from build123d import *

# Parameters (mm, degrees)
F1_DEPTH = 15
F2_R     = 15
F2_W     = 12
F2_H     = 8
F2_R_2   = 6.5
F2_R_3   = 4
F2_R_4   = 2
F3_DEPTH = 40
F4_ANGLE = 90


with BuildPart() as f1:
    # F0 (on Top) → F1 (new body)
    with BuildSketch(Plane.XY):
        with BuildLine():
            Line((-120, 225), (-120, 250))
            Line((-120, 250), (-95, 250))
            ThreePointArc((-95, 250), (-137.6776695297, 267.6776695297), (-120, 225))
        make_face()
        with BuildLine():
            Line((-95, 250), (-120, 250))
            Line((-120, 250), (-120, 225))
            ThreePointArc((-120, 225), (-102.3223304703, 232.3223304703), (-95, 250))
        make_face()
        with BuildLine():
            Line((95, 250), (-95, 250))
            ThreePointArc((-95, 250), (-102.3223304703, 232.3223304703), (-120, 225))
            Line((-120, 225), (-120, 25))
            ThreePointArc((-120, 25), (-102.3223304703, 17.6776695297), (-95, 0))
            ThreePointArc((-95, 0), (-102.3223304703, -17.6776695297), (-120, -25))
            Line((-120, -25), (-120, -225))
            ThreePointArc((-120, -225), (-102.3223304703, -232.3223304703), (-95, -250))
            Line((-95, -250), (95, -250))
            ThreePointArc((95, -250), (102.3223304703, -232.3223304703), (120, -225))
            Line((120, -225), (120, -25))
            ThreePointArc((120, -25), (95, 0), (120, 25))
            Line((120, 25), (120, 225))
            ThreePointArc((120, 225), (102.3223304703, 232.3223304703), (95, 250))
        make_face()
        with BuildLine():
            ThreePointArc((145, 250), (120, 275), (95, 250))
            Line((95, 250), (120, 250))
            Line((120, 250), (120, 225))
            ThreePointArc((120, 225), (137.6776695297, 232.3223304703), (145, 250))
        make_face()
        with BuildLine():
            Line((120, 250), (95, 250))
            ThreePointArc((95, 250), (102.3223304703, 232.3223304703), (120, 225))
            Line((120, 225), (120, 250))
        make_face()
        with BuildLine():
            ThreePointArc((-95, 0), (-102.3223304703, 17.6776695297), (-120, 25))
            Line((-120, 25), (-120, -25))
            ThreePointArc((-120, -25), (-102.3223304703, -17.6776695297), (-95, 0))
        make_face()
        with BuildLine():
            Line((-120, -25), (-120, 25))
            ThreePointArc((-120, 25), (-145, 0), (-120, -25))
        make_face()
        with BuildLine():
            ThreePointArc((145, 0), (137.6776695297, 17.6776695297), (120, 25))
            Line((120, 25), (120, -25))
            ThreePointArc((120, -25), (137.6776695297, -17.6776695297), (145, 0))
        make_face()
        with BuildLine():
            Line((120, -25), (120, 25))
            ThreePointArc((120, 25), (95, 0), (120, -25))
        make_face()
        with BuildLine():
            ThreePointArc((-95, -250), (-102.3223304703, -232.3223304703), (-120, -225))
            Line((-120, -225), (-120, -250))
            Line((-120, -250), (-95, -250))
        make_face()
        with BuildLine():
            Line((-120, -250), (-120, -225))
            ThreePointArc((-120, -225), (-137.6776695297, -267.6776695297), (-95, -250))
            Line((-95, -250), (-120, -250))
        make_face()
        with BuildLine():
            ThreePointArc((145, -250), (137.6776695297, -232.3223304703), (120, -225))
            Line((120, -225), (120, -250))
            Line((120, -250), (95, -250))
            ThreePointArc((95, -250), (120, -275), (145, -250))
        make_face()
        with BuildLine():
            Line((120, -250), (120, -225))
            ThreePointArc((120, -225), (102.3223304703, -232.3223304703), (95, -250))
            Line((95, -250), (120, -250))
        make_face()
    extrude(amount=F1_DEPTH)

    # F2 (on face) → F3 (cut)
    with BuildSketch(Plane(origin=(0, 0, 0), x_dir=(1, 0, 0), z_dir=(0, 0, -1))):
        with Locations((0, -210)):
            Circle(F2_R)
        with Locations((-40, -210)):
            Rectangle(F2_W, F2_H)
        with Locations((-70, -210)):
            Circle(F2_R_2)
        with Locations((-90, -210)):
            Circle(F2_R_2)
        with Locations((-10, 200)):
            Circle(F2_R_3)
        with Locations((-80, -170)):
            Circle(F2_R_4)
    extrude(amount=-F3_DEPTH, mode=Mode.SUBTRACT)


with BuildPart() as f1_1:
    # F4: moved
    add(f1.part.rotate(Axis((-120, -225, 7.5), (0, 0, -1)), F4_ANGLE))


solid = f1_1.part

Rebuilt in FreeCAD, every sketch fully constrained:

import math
import FreeCAD as App
import Part
import Sketcher
Q = App.Units.Quantity


def add_polygon(sketch, points):
    """Adds a closed chain of lines whose ends are joined by coincident constraints."""
    first, n = sketch.GeometryCount, len(points)
    for a, b in zip(points, points[1:] + points[:1]):
        sketch.addGeometry(Part.LineSegment(App.Vector(*a, 0), App.Vector(*b, 0)), False)
    for i in range(n):
        sketch.addConstraint(Sketcher.Constraint("Coincident", first + i, 2, first + (i + 1) % n, 1))

doc = App.newDocument("Part")
params = doc.addObject("Spreadsheet::Sheet", "Params")
for row, (alias, value) in enumerate([
    ("sketch1_radius", "25 mm"),
    ("sketch1_width", "190 mm"),
    ("sketch1_height", "200 mm"),
    ("pad1_length", "15 mm"),
    ("sketch2_diameter", "30 mm"),
    ("sketch2_diameter2", "13 mm"),
    ("sketch2_diameter3", "8 mm"),
    ("sketch2_diameter4", "4 mm"),
    ("sketch2_width", "12 mm"),
    ("pocket1_length", "40 mm"),
], start=1):
    params.set(f"A{row}", alias)
    params.set(f"B{row}", "=" + value)
    params.setAlias(f"B{row}", alias)

body = doc.addObject("PartDesign::Body", "Body")

sketch1 = body.newObject("Sketcher::SketchObject", "Sketch")
sketch1.AttachmentSupport = (doc.getObject("XY_Plane"), [""])
sketch1.MapMode = "FlatFace"
sketch1.addGeometry(Part.ArcOfCircle(Part.Circle(App.Vector(-120, 250, 0), App.Vector(0, 0, 1), 25), math.radians(0), math.radians(270)), False)
sketch1.addGeometry(Part.LineSegment(App.Vector(-120, 225, 0), App.Vector(-120, 25, 0)), False)
sketch1.addGeometry(Part.ArcOfCircle(Part.Circle(App.Vector(-120, 0, 0), App.Vector(0, 0, 1), 25), math.radians(90), math.radians(270)), False)
sketch1.addGeometry(Part.LineSegment(App.Vector(-120, -25, 0), App.Vector(-120, -225, 0)), False)
sketch1.addGeometry(Part.ArcOfCircle(Part.Circle(App.Vector(-120, -250, 0), App.Vector(0, 0, 1), 25), math.radians(90), math.radians(360)), False)
sketch1.addGeometry(Part.LineSegment(App.Vector(-95, -250, 0), App.Vector(95, -250, 0)), False)
sketch1.addGeometry(Part.ArcOfCircle(Part.Circle(App.Vector(120, -250, 0), App.Vector(0, 0, 1), 25), math.radians(180), math.radians(360)), False)
sketch1.addGeometry(Part.ArcOfCircle(Part.Circle(App.Vector(120, -250, 0), App.Vector(0, 0, 1), 25), math.radians(0), math.radians(90)), False)
sketch1.addGeometry(Part.LineSegment(App.Vector(120, -225, 0), App.Vector(120, -25, 0)), False)
sketch1.addGeometry(Part.ArcOfCircle(Part.Circle(App.Vector(120, 0, 0), App.Vector(0, 0, 1), 25), math.radians(-90), math.radians(0)), False)
sketch1.addGeometry(Part.ArcOfCircle(Part.Circle(App.Vector(120, 0, 0), App.Vector(0, 0, 1), 25), math.radians(0), math.radians(90)), False)
sketch1.addGeometry(Part.LineSegment(App.Vector(120, 25, 0), App.Vector(120, 225, 0)), False)
sketch1.addGeometry(Part.ArcOfCircle(Part.Circle(App.Vector(120, 250, 0), App.Vector(0, 0, 1), 25), math.radians(-90), math.radians(0)), False)
sketch1.addGeometry(Part.ArcOfCircle(Part.Circle(App.Vector(120, 250, 0), App.Vector(0, 0, 1), 25), math.radians(0), math.radians(180)), False)
sketch1.addGeometry(Part.LineSegment(App.Vector(95, 250, 0), App.Vector(-95, 250, 0)), False)
sketch1.addConstraint(Sketcher.Constraint("Coincident", 0, 2, 1, 1))
sketch1.addConstraint(Sketcher.Constraint("Coincident", 1, 2, 2, 1))
sketch1.addConstraint(Sketcher.Constraint("Coincident", 2, 2, 3, 1))
sketch1.addConstraint(Sketcher.Constraint("Coincident", 3, 2, 4, 1))
sketch1.addConstraint(Sketcher.Constraint("Coincident", 4, 2, 5, 1))
sketch1.addConstraint(Sketcher.Constraint("Coincident", 5, 2, 6, 1))
sketch1.addConstraint(Sketcher.Constraint("Tangent", 6, 2, 7, 1))
sketch1.addConstraint(Sketcher.Constraint("Coincident", 7, 2, 8, 1))
sketch1.addConstraint(Sketcher.Constraint("Coincident", 8, 2, 9, 1))
sketch1.addConstraint(Sketcher.Constraint("Tangent", 9, 2, 10, 1))
sketch1.addConstraint(Sketcher.Constraint("Coincident", 10, 2, 11, 1))
sketch1.addConstraint(Sketcher.Constraint("Coincident", 11, 2, 12, 1))
sketch1.addConstraint(Sketcher.Constraint("Tangent", 12, 2, 13, 1))
sketch1.addConstraint(Sketcher.Constraint("Coincident", 13, 2, 14, 1))
sketch1.addConstraint(Sketcher.Constraint("Coincident", 14, 2, 0, 1))
sketch1.addConstraint(Sketcher.Constraint("Vertical", 1))
sketch1.addConstraint(Sketcher.Constraint("Vertical", 3))
sketch1.addConstraint(Sketcher.Constraint("Horizontal", 5))
sketch1.addConstraint(Sketcher.Constraint("Vertical", 8))
sketch1.addConstraint(Sketcher.Constraint("Vertical", 11))
sketch1.addConstraint(Sketcher.Constraint("Horizontal", 14))
sketch1.addConstraint(Sketcher.Constraint("Equal", 0, 2))
sketch1.addConstraint(Sketcher.Constraint("Equal", 2, 4))
sketch1.addConstraint(Sketcher.Constraint("Equal", 4, 6))
sketch1.addConstraint(Sketcher.Constraint("Equal", 6, 7))
sketch1.addConstraint(Sketcher.Constraint("Equal", 7, 9))
sketch1.addConstraint(Sketcher.Constraint("Equal", 9, 10))
sketch1.addConstraint(Sketcher.Constraint("Equal", 10, 12))
sketch1.addConstraint(Sketcher.Constraint("Equal", 12, 13))
sketch1.addConstraint(Sketcher.Constraint("Symmetric", 0, 3, 6, 3, -1, 1))
sketch1.addConstraint(Sketcher.Constraint("Symmetric", 2, 3, 9, 3, -1, 1))
sketch1.addConstraint(Sketcher.Constraint("Symmetric", 4, 3, 12, 3, -1, 1))
sketch1.addConstraint(Sketcher.Constraint("Symmetric", 4, 3, 6, 3, -2))
sketch1.addConstraint(Sketcher.Constraint("Symmetric", 2, 2, 8, 2, -2))
sketch1.addConstraint(Sketcher.Constraint("PointOnObject", 9, 2, -1))
sketch1.addConstraint(Sketcher.Constraint("Horizontal", 7, 3, 4, 2))
sketch1.addConstraint(Sketcher.Constraint("Horizontal", 5, 2, 6, 2))
sketch1.addConstraint(Sketcher.Constraint("Horizontal", 13, 3, 12, 2))
sketch1.addConstraint(Sketcher.Constraint("Horizontal", 12, 2, 13, 2))
sketch1.addConstraint(Sketcher.Constraint("Vertical", 0, 3, 2, 3))
sketch1.addConstraint(Sketcher.Constraint("Vertical", 4, 3, 0, 2))
sketch1.addConstraint(Sketcher.Constraint("Vertical", 1, 2, 2, 2))
sketch1.addConstraint(Sketcher.Constraint("Vertical", 8, 2, 10, 2))
sketch1.addConstraint(Sketcher.Constraint("Radius", 0, Q("25 mm")))
sketch1.addConstraint(Sketcher.Constraint("DistanceX", 5, 1, 5, 2, Q("190 mm")))
sketch1.addConstraint(Sketcher.Constraint("DistanceY", 1, 2, 1, 1, Q("200 mm")))
sketch1.setExpression("Constraints[43]", "Params.sketch1_radius")
sketch1.setExpression("Constraints[44]", "Params.sketch1_width")
sketch1.setExpression("Constraints[45]", "Params.sketch1_height")
pad1 = body.newObject("PartDesign::Pad", "Pad")
pad1.Profile = sketch1
pad1.setExpression("Length", "Params.pad1_length")

sketch2 = body.newObject("Sketcher::SketchObject", "Sketch001")
sketch2.AttachmentSupport = (doc.getObject("XY_Plane"), [""])
sketch2.MapMode = "FlatFace"
sketch2.addGeometry(Part.Circle(App.Vector(0, 210, 0), App.Vector(0, 0, 1), 15), False)
add_polygon(sketch2, [(-46, 206), (-46, 214), (-34, 214), (-34, 206)])
sketch2.addGeometry(Part.Circle(App.Vector(-70, 210, 0), App.Vector(0, 0, 1), 6.5), False)
sketch2.addGeometry(Part.Circle(App.Vector(-90, 210, 0), App.Vector(0, 0, 1), 6.5), False)
sketch2.addGeometry(Part.Circle(App.Vector(-10, -200, 0), App.Vector(0, 0, 1), 4), False)
sketch2.addGeometry(Part.Circle(App.Vector(-80, 170, 0), App.Vector(0, 0, 1), 2), False)
sketch2.addConstraint(Sketcher.Constraint("Vertical", 1))
sketch2.addConstraint(Sketcher.Constraint("Horizontal", 2))
sketch2.addConstraint(Sketcher.Constraint("Vertical", 3))
sketch2.addConstraint(Sketcher.Constraint("Horizontal", 4))
sketch2.addConstraint(Sketcher.Constraint("Equal", 5, 6))
sketch2.addConstraint(Sketcher.Constraint("PointOnObject", 0, 3, -2))
sketch2.addConstraint(Sketcher.Constraint("Horizontal", 0, 3, 5, 3))
sketch2.addConstraint(Sketcher.Constraint("Horizontal", 5, 3, 6, 3))
sketch2.addConstraint(Sketcher.Constraint("Diameter", 0, Q("30 mm")))
sketch2.addConstraint(Sketcher.Constraint("Diameter", 5, Q("13 mm")))
sketch2.addConstraint(Sketcher.Constraint("Diameter", 7, Q("8 mm")))
sketch2.addConstraint(Sketcher.Constraint("Diameter", 8, Q("4 mm")))
sketch2.addConstraint(Sketcher.Constraint("DistanceX", 2, 1, 2, 2, Q("12 mm")))
sketch2.addConstraint(Sketcher.Constraint("DistanceY", 1, 1, 1, 2, Q("8 mm")))
sketch2.addConstraint(Sketcher.Constraint("DistanceY", -1, 1, 0, 3, Q("210 mm")))
sketch2.addConstraint(Sketcher.Constraint("DistanceX", 5, 3, -1, 1, Q("70 mm")))
sketch2.addConstraint(Sketcher.Constraint("DistanceX", 6, 3, -1, 1, Q("90 mm")))
sketch2.addConstraint(Sketcher.Constraint("DistanceX", 7, 3, -1, 1, Q("10 mm")))
sketch2.addConstraint(Sketcher.Constraint("DistanceY", 7, 3, -1, 1, Q("200 mm")))
sketch2.addConstraint(Sketcher.Constraint("DistanceX", 8, 3, -1, 1, Q("80 mm")))
sketch2.addConstraint(Sketcher.Constraint("DistanceY", -1, 1, 8, 3, Q("170 mm")))
sketch2.addConstraint(Sketcher.Constraint("DistanceX", 1, 2, -1, 1, Q("46 mm")))
sketch2.addConstraint(Sketcher.Constraint("DistanceY", -1, 1, 1, 2, Q("214 mm")))
sketch2.setExpression("Constraints[12]", "Params.sketch2_diameter")
sketch2.setExpression("Constraints[13]", "Params.sketch2_diameter2")
sketch2.setExpression("Constraints[14]", "Params.sketch2_diameter3")
sketch2.setExpression("Constraints[15]", "Params.sketch2_diameter4")
sketch2.setExpression("Constraints[16]", "Params.sketch2_width")
pocket1 = body.newObject("PartDesign::Pocket", "Pocket")
pocket1.Profile = sketch2
pocket1.setExpression("Length", "Params.pocket1_length")
pocket1.Reversed = True
body2 = doc.addObject("PartDesign::Body", "Body001")
doc.recompute()

body.Placement = App.Placement(App.Vector(105, -345, 0), App.Rotation(App.Vector(0, 0, -1), 90))
boolean = body2.newObject("PartDesign::Boolean", "Boolean")
boolean.Type = "Fuse"
boolean.addObjects([body])

doc.recompute()
